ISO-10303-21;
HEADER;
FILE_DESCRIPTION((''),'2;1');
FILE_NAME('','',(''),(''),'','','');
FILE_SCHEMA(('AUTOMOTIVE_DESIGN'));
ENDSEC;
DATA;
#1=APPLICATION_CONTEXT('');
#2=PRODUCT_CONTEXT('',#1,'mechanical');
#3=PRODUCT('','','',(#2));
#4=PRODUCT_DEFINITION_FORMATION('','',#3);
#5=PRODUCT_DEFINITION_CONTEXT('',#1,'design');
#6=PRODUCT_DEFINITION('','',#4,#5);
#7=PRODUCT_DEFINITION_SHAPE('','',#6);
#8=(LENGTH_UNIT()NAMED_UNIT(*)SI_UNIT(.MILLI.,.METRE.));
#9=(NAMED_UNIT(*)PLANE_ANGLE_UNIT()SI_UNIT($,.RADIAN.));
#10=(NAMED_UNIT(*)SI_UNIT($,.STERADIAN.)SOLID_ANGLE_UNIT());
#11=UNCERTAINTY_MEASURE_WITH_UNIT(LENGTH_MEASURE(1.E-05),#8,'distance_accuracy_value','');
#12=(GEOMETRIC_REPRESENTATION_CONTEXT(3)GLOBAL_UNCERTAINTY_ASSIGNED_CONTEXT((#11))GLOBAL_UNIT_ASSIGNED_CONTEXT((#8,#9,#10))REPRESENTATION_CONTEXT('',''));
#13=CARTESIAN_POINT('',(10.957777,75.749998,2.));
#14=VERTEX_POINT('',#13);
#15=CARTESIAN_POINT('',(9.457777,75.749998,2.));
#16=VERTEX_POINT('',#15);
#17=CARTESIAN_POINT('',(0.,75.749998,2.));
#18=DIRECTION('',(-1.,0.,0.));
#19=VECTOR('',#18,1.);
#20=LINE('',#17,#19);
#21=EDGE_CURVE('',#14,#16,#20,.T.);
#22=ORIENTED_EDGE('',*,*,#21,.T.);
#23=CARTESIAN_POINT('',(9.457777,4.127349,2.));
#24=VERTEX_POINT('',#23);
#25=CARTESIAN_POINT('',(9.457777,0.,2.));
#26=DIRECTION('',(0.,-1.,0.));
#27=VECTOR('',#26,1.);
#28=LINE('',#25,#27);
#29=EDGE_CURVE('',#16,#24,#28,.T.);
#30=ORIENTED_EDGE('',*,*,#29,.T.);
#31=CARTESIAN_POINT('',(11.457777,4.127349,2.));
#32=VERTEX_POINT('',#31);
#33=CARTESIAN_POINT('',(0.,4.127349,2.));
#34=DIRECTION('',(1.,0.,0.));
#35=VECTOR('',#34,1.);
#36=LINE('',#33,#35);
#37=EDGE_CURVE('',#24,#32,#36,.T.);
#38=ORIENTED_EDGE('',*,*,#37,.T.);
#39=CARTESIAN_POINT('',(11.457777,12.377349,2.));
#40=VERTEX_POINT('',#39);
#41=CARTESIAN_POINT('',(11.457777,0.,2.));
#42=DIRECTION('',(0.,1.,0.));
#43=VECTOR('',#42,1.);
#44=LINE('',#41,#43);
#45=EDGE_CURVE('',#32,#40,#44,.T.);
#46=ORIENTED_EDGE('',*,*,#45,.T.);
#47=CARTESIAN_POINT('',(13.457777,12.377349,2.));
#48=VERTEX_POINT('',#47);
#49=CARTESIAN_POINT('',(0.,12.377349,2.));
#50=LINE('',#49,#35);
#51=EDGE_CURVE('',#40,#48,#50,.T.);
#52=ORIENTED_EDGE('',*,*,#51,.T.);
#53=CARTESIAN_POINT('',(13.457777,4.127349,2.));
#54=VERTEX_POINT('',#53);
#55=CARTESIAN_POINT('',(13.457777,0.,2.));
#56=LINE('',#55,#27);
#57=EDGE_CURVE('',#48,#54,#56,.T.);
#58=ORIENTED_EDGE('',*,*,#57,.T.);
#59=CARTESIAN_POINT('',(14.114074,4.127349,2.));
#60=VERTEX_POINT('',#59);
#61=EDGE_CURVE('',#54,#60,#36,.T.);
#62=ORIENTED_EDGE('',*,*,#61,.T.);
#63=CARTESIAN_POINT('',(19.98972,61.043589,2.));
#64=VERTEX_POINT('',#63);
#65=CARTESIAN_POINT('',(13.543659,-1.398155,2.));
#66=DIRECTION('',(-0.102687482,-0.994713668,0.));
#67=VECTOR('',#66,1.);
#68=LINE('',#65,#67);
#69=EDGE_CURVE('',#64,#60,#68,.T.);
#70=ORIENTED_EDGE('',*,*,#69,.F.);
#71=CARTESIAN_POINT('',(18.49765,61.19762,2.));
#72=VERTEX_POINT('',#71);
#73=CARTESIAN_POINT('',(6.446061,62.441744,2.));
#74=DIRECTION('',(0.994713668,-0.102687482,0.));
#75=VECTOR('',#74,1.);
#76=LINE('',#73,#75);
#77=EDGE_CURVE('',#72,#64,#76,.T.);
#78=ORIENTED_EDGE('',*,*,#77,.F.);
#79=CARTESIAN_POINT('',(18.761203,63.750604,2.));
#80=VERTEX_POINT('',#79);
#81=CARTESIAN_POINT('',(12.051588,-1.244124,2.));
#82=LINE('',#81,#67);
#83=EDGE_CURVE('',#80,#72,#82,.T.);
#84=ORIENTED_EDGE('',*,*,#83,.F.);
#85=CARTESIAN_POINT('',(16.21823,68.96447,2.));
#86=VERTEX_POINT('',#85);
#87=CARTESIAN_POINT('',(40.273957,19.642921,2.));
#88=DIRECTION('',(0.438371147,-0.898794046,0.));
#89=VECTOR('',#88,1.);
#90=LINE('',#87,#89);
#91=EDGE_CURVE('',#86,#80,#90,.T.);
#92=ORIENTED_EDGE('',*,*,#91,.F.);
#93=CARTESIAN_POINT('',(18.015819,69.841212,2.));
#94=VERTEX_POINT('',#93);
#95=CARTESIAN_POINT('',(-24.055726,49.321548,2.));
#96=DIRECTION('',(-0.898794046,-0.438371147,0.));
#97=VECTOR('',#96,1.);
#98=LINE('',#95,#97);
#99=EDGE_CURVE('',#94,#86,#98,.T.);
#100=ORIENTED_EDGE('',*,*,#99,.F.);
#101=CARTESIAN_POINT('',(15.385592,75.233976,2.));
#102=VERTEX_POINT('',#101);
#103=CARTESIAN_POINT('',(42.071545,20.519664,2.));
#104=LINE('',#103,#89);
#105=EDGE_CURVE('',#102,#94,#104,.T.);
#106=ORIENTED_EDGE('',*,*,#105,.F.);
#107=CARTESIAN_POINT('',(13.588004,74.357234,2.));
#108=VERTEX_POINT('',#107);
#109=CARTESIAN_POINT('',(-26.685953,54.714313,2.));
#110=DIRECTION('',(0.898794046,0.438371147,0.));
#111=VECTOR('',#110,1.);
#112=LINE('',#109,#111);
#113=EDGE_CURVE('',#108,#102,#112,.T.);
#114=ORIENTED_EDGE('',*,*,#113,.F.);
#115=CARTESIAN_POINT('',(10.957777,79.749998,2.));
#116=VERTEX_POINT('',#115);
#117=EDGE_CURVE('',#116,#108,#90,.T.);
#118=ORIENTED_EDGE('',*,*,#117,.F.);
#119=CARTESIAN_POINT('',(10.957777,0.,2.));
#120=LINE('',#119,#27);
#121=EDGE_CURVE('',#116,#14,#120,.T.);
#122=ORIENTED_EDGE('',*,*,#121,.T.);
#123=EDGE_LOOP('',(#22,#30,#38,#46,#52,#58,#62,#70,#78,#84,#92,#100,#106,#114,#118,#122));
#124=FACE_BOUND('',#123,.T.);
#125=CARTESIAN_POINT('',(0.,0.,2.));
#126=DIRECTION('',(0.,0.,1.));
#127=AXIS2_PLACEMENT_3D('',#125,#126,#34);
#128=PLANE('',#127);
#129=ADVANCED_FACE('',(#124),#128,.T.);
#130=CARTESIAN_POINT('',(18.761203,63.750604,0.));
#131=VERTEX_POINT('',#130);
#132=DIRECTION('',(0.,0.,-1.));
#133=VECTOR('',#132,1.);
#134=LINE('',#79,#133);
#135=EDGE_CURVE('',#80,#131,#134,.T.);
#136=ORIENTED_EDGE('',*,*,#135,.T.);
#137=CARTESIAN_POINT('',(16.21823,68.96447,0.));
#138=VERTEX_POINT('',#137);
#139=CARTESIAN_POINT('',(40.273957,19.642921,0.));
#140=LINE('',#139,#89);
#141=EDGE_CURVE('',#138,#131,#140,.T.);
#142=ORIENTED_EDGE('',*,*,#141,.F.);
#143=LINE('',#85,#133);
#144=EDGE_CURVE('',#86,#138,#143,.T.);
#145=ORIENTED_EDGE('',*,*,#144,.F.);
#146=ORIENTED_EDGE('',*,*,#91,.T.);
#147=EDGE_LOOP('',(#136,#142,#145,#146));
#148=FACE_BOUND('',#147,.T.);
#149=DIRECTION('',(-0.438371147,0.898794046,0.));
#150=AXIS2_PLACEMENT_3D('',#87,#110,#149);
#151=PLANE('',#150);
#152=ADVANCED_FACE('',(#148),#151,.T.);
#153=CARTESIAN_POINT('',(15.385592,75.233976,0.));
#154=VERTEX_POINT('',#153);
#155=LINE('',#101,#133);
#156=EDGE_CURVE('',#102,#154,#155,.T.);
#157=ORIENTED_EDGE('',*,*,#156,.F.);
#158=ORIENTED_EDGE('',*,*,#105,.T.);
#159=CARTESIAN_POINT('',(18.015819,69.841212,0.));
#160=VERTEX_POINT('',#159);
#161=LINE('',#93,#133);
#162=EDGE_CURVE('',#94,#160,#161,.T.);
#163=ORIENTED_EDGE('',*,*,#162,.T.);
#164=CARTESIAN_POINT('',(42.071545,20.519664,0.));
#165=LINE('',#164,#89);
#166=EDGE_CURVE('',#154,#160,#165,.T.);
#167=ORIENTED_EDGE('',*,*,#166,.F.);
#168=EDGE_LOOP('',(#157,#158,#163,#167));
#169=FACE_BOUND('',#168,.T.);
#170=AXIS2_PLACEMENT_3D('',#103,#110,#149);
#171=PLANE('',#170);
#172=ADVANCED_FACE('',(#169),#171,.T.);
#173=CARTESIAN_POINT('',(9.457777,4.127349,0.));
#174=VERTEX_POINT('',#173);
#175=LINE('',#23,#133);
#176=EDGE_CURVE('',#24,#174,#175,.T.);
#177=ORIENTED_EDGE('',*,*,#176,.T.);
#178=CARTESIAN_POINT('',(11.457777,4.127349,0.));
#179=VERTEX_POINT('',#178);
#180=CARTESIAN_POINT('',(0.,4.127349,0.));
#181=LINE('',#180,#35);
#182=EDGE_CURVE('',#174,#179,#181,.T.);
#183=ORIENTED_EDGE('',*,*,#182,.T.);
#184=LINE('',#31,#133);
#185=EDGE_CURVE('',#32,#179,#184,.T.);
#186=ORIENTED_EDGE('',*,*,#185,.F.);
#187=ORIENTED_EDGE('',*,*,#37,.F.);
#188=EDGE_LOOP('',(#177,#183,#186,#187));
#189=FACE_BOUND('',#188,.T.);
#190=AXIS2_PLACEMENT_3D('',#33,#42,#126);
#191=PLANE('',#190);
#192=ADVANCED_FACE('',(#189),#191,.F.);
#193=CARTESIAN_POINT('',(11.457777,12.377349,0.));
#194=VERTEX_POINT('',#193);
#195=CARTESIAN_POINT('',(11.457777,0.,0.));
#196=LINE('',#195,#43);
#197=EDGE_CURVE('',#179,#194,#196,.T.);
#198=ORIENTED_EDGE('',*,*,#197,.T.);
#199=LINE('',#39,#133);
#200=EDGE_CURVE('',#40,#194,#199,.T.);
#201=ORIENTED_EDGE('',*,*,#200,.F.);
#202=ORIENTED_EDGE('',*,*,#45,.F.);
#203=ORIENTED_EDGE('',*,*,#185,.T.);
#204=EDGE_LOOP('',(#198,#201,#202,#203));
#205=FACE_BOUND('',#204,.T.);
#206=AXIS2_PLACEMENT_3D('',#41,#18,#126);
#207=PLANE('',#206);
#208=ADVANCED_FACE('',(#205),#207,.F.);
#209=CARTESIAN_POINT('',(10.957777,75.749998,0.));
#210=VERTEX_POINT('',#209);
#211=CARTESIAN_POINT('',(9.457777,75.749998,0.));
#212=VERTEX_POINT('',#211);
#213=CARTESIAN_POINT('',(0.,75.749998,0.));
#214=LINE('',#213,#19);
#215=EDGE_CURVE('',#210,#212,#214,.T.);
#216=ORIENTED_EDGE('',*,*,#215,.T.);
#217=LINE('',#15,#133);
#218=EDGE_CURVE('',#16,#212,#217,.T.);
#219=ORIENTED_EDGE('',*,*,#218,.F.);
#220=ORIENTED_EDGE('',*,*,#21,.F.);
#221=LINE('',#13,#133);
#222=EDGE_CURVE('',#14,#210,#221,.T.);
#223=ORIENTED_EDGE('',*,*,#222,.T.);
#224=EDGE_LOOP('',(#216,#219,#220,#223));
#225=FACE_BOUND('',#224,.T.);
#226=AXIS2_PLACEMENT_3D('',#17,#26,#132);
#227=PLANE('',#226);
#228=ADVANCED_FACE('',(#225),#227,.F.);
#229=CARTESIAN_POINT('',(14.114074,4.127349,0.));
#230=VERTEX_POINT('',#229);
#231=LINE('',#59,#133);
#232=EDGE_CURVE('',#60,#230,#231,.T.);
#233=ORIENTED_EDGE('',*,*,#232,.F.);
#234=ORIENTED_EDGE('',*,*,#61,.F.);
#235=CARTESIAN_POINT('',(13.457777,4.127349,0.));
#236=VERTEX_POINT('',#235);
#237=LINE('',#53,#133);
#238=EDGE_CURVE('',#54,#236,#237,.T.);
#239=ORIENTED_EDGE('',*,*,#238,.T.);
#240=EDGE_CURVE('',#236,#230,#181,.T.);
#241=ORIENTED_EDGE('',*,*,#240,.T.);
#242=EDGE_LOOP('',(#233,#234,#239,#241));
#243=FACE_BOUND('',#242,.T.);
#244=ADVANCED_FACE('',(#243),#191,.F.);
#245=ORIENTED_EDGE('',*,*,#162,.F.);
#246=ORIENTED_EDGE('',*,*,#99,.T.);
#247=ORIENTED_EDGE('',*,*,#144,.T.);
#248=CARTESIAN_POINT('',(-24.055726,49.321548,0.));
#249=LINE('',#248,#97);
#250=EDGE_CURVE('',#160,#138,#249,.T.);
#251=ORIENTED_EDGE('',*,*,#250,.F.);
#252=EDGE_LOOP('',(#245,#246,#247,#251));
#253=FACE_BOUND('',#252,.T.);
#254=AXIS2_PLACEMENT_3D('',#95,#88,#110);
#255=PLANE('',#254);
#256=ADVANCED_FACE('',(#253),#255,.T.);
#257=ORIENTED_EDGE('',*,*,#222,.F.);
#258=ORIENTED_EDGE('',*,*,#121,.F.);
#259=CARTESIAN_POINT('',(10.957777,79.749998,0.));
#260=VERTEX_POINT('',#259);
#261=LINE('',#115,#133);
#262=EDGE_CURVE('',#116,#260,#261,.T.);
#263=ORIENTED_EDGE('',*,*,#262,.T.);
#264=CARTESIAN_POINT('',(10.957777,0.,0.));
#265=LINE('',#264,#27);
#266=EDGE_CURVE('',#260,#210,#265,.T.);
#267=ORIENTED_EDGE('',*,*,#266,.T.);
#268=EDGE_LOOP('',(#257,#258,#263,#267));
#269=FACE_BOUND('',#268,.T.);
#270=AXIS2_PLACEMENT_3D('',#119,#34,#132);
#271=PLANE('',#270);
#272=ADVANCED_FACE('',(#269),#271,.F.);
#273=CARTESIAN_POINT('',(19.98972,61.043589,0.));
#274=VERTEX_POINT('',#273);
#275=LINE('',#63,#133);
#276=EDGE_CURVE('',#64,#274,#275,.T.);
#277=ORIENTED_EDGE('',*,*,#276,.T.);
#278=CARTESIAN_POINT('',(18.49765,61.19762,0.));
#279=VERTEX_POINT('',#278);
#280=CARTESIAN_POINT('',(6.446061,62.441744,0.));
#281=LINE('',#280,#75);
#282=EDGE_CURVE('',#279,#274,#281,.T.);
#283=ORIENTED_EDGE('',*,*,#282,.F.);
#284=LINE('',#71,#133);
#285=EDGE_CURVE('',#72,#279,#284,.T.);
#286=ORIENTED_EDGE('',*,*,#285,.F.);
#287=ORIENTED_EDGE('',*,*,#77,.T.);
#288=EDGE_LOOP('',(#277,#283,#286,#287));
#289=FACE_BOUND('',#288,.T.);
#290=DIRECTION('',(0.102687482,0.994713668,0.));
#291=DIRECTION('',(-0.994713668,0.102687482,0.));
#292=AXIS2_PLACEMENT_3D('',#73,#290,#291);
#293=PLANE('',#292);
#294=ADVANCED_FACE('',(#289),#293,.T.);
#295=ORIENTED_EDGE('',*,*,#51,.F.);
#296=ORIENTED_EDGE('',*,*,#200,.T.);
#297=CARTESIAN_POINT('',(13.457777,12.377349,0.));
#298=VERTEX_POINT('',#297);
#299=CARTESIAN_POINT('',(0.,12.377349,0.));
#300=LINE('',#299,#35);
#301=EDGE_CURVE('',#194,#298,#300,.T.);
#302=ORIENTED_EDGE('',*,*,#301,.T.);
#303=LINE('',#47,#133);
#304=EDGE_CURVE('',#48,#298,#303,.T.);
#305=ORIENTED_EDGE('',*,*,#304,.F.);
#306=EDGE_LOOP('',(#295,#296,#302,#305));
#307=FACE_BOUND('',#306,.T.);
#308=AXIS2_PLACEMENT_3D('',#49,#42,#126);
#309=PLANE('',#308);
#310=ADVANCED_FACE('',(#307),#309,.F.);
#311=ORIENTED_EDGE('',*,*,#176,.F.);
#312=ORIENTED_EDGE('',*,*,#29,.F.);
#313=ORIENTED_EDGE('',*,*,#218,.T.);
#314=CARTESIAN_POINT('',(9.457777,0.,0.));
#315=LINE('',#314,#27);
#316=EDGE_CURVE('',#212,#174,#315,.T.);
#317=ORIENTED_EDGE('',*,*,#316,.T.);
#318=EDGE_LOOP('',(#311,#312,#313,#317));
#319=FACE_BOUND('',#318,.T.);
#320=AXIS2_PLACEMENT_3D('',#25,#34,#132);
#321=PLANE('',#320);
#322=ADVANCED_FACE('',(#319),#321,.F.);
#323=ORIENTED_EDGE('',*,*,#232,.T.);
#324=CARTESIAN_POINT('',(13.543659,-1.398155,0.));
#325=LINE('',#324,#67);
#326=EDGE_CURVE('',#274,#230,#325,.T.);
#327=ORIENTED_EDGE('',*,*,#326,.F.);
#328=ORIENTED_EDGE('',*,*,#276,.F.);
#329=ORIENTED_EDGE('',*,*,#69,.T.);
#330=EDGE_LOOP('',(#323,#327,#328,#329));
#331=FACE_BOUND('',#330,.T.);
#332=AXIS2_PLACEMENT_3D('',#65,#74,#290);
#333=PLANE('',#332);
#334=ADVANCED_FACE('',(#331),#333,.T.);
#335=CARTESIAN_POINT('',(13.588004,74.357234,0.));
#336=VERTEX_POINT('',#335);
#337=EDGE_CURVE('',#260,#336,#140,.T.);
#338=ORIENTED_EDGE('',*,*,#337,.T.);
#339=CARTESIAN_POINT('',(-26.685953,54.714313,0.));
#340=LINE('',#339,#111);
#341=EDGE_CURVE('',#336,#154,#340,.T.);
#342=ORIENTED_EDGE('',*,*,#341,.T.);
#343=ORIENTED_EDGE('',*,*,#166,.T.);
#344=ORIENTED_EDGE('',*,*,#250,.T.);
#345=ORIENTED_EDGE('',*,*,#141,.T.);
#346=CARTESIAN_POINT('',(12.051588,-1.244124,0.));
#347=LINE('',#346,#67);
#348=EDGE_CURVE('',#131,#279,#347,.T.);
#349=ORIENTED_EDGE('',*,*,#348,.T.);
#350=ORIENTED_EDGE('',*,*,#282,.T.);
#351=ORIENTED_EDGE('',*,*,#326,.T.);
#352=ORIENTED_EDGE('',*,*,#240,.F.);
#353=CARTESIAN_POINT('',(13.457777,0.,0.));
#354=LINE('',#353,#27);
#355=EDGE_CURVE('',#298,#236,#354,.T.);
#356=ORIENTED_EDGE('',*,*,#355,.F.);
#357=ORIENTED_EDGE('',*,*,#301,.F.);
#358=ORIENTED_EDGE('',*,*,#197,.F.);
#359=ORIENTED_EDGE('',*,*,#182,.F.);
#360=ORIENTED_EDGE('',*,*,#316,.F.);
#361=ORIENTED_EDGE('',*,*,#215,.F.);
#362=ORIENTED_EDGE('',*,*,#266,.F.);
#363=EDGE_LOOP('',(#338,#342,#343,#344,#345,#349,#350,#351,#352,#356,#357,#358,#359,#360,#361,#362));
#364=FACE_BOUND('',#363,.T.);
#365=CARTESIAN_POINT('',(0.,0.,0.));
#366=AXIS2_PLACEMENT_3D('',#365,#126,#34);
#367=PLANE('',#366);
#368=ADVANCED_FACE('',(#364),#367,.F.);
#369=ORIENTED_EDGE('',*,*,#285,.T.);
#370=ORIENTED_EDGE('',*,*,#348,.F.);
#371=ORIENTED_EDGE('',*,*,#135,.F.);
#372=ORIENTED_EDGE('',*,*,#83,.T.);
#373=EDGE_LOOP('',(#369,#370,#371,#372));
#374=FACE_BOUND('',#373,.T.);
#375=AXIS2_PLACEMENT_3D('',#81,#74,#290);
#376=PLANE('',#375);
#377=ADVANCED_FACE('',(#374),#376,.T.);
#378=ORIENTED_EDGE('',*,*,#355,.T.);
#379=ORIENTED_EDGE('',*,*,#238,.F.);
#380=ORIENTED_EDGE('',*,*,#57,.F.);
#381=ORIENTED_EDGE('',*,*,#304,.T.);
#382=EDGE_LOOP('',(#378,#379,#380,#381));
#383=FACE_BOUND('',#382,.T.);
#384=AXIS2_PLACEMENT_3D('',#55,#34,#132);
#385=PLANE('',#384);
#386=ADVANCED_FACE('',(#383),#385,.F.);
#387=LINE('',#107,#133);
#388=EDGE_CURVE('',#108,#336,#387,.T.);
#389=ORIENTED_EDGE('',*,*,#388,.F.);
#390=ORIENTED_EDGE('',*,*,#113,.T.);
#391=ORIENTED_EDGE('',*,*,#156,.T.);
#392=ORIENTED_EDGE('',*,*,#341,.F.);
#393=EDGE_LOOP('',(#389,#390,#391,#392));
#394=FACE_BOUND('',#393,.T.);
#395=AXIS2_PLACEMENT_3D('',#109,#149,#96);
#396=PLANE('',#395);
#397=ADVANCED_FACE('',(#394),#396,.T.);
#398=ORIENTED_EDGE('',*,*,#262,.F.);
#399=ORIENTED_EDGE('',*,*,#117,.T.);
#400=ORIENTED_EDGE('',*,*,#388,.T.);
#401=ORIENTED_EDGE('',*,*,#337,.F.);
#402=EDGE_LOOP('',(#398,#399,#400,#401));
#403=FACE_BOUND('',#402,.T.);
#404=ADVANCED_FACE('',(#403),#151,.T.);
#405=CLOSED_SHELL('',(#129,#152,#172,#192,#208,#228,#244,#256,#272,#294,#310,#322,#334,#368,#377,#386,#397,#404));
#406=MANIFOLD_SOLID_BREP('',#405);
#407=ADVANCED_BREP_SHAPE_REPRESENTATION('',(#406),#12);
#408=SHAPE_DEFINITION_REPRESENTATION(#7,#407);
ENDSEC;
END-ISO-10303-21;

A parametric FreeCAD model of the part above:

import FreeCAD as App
import Part
import Sketcher
Q = App.Units.Quantity

doc = App.newDocument("Part")
body = doc.addObject("PartDesign::Body", "Body")

sketch1 = body.newObject("Sketcher::SketchObject", "Sketch")
sketch1.AttachmentSupport = (doc.getObject("XY_Plane"), [""])
sketch1.MapMode = "FlatFace"
sketch1.addGeometry([
    Part.LineSegment(App.Vector(19.98972, 61.043589, 0), App.Vector(18.49765, 61.19762, 0)),
    Part.LineSegment(App.Vector(18.49765, 61.19762, 0), App.Vector(18.761203, 63.750604, 0)),
    Part.LineSegment(App.Vector(18.761203, 63.750604, 0), App.Vector(16.21823, 68.96447, 0)),
    Part.LineSegment(App.Vector(16.21823, 68.96447, 0), App.Vector(18.015819, 69.841212, 0)),
    Part.LineSegment(App.Vector(18.015819, 69.841212, 0), App.Vector(15.385592, 75.233976, 0)),
    Part.LineSegment(App.Vector(15.385592, 75.233976, 0), App.Vector(13.588004, 74.357234, 0)),
    Part.LineSegment(App.Vector(13.588004, 74.357234, 0), App.Vector(10.957777, 79.749998, 0)),
    Part.LineSegment(App.Vector(10.957777, 79.749998, 0), App.Vector(10.957777, 75.749998, 0)),
    Part.LineSegment(App.Vector(10.957777, 75.749998, 0), App.Vector(9.457777, 75.749998, 0)),
    Part.LineSegment(App.Vector(9.457777, 75.749998, 0), App.Vector(9.457777, 4.127349, 0)),
    Part.LineSegment(App.Vector(9.457777, 4.127349, 0), App.Vector(11.457777, 4.127349, 0)),
    Part.LineSegment(App.Vector(11.457777, 4.127349, 0), App.Vector(11.457777, 12.377349, 0)),
    Part.LineSegment(App.Vector(11.457777, 12.377349, 0), App.Vector(13.457777, 12.377349, 0)),
    Part.LineSegment(App.Vector(13.457777, 12.377349, 0), App.Vector(13.457777, 4.127349, 0)),
    Part.LineSegment(App.Vector(13.457777, 4.127349, 0), App.Vector(14.114074, 4.127349, 0)),
    Part.LineSegment(App.Vector(14.114074, 4.127349, 0), App.Vector(19.98972, 61.043589, 0)),
], False)
sketch1.addConstraint([
    Sketcher.Constraint("Coincident", 0, 2, 1, 1),
    Sketcher.Constraint("Coincident", 1, 2, 2, 1),
    Sketcher.Constraint("Coincident", 2, 2, 3, 1),
    Sketcher.Constraint("Coincident", 3, 2, 4, 1),
    Sketcher.Constraint("Coincident", 4, 2, 5, 1),
    Sketcher.Constraint("Coincident", 5, 2, 6, 1),
    Sketcher.Constraint("Coincident", 6, 2, 7, 1),
    Sketcher.Constraint("Coincident", 7, 2, 8, 1),
    Sketcher.Constraint("Coincident", 8, 2, 9, 1),
    Sketcher.Constraint("Coincident", 9, 2, 10, 1),
    Sketcher.Constraint("Coincident", 10, 2, 11, 1),
    Sketcher.Constraint("Coincident", 11, 2, 12, 1),
    Sketcher.Constraint("Coincident", 12, 2, 13, 1),
    Sketcher.Constraint("Coincident", 13, 2, 14, 1),
    Sketcher.Constraint("Coincident", 14, 2, 15, 1),
    Sketcher.Constraint("Coincident", 15, 2, 0, 1),
    Sketcher.Constraint("Vertical", 7),
    Sketcher.Constraint("Horizontal", 8),
    Sketcher.Constraint("Vertical", 9),
    Sketcher.Constraint("Horizontal", 10),
    Sketcher.Constraint("Vertical", 11),
    Sketcher.Constraint("Horizontal", 12),
    Sketcher.Constraint("Vertical", 13),
    Sketcher.Constraint("Horizontal", 14),
    Sketcher.Constraint("Perpendicular", 0, 1),
    Sketcher.Constraint("Perpendicular", 2, 3),
    Sketcher.Constraint("Perpendicular", 3, 4),
    Sketcher.Constraint("Perpendicular", 4, 5),
    Sketcher.Constraint("Perpendicular", 5, 6),
    Sketcher.Constraint("Parallel", 1, 15),
    Sketcher.Constraint("Horizontal", 10, 2, 13, 2),
    Sketcher.Constraint("Equal", 10, 12),
    Sketcher.Constraint("Equal", 3, 5),
    Sketcher.Constraint("Equal", 4, 6),
    Sketcher.Constraint("DistanceX", 10, 1, 10, 2, Q("2 mm")),
    Sketcher.Constraint("DistanceY", 7, 2, 7, 1, Q("4 mm")),
    Sketcher.Constraint("Angle", 2, Q("116 deg")),
    Sketcher.Constraint("Distance", 3, Q("2 mm")),
    Sketcher.Constraint("Distance", 4, Q("6 mm")),
    Sketcher.Constraint("DistanceX", 8, 2, 8, 1, Q("1.5 mm")),
    Sketcher.Constraint("Distance", 0, Q("1.5 mm")),
    Sketcher.Constraint("DistanceY", 11, 1, 11, 2, Q("8.25 mm")),
    Sketcher.Constraint("DistanceY", -1, 1, 6, 2, Q("79.749998 mm")),
    Sketcher.Constraint("DistanceY", 9, 2, 9, 1, Q("71.622649 mm")),
    Sketcher.Constraint("DistanceX", 5, 2, 1, 2, Q("5.173199 mm")),
    Sketcher.Constraint("DistanceX", 3, 2, 15, 2, Q("1.973902 mm")),
    Sketcher.Constraint("DistanceX", 14, 1, 14, 2, Q("0.656298 mm")),
    Sketcher.Constraint("DistanceX", -1, 1, 0, 2, Q("18.49765 mm")),
])
pad1 = body.newObject("PartDesign::Pad", "Pad")
pad1.Profile = sketch1
pad1.Length = 2

doc.recompute()
